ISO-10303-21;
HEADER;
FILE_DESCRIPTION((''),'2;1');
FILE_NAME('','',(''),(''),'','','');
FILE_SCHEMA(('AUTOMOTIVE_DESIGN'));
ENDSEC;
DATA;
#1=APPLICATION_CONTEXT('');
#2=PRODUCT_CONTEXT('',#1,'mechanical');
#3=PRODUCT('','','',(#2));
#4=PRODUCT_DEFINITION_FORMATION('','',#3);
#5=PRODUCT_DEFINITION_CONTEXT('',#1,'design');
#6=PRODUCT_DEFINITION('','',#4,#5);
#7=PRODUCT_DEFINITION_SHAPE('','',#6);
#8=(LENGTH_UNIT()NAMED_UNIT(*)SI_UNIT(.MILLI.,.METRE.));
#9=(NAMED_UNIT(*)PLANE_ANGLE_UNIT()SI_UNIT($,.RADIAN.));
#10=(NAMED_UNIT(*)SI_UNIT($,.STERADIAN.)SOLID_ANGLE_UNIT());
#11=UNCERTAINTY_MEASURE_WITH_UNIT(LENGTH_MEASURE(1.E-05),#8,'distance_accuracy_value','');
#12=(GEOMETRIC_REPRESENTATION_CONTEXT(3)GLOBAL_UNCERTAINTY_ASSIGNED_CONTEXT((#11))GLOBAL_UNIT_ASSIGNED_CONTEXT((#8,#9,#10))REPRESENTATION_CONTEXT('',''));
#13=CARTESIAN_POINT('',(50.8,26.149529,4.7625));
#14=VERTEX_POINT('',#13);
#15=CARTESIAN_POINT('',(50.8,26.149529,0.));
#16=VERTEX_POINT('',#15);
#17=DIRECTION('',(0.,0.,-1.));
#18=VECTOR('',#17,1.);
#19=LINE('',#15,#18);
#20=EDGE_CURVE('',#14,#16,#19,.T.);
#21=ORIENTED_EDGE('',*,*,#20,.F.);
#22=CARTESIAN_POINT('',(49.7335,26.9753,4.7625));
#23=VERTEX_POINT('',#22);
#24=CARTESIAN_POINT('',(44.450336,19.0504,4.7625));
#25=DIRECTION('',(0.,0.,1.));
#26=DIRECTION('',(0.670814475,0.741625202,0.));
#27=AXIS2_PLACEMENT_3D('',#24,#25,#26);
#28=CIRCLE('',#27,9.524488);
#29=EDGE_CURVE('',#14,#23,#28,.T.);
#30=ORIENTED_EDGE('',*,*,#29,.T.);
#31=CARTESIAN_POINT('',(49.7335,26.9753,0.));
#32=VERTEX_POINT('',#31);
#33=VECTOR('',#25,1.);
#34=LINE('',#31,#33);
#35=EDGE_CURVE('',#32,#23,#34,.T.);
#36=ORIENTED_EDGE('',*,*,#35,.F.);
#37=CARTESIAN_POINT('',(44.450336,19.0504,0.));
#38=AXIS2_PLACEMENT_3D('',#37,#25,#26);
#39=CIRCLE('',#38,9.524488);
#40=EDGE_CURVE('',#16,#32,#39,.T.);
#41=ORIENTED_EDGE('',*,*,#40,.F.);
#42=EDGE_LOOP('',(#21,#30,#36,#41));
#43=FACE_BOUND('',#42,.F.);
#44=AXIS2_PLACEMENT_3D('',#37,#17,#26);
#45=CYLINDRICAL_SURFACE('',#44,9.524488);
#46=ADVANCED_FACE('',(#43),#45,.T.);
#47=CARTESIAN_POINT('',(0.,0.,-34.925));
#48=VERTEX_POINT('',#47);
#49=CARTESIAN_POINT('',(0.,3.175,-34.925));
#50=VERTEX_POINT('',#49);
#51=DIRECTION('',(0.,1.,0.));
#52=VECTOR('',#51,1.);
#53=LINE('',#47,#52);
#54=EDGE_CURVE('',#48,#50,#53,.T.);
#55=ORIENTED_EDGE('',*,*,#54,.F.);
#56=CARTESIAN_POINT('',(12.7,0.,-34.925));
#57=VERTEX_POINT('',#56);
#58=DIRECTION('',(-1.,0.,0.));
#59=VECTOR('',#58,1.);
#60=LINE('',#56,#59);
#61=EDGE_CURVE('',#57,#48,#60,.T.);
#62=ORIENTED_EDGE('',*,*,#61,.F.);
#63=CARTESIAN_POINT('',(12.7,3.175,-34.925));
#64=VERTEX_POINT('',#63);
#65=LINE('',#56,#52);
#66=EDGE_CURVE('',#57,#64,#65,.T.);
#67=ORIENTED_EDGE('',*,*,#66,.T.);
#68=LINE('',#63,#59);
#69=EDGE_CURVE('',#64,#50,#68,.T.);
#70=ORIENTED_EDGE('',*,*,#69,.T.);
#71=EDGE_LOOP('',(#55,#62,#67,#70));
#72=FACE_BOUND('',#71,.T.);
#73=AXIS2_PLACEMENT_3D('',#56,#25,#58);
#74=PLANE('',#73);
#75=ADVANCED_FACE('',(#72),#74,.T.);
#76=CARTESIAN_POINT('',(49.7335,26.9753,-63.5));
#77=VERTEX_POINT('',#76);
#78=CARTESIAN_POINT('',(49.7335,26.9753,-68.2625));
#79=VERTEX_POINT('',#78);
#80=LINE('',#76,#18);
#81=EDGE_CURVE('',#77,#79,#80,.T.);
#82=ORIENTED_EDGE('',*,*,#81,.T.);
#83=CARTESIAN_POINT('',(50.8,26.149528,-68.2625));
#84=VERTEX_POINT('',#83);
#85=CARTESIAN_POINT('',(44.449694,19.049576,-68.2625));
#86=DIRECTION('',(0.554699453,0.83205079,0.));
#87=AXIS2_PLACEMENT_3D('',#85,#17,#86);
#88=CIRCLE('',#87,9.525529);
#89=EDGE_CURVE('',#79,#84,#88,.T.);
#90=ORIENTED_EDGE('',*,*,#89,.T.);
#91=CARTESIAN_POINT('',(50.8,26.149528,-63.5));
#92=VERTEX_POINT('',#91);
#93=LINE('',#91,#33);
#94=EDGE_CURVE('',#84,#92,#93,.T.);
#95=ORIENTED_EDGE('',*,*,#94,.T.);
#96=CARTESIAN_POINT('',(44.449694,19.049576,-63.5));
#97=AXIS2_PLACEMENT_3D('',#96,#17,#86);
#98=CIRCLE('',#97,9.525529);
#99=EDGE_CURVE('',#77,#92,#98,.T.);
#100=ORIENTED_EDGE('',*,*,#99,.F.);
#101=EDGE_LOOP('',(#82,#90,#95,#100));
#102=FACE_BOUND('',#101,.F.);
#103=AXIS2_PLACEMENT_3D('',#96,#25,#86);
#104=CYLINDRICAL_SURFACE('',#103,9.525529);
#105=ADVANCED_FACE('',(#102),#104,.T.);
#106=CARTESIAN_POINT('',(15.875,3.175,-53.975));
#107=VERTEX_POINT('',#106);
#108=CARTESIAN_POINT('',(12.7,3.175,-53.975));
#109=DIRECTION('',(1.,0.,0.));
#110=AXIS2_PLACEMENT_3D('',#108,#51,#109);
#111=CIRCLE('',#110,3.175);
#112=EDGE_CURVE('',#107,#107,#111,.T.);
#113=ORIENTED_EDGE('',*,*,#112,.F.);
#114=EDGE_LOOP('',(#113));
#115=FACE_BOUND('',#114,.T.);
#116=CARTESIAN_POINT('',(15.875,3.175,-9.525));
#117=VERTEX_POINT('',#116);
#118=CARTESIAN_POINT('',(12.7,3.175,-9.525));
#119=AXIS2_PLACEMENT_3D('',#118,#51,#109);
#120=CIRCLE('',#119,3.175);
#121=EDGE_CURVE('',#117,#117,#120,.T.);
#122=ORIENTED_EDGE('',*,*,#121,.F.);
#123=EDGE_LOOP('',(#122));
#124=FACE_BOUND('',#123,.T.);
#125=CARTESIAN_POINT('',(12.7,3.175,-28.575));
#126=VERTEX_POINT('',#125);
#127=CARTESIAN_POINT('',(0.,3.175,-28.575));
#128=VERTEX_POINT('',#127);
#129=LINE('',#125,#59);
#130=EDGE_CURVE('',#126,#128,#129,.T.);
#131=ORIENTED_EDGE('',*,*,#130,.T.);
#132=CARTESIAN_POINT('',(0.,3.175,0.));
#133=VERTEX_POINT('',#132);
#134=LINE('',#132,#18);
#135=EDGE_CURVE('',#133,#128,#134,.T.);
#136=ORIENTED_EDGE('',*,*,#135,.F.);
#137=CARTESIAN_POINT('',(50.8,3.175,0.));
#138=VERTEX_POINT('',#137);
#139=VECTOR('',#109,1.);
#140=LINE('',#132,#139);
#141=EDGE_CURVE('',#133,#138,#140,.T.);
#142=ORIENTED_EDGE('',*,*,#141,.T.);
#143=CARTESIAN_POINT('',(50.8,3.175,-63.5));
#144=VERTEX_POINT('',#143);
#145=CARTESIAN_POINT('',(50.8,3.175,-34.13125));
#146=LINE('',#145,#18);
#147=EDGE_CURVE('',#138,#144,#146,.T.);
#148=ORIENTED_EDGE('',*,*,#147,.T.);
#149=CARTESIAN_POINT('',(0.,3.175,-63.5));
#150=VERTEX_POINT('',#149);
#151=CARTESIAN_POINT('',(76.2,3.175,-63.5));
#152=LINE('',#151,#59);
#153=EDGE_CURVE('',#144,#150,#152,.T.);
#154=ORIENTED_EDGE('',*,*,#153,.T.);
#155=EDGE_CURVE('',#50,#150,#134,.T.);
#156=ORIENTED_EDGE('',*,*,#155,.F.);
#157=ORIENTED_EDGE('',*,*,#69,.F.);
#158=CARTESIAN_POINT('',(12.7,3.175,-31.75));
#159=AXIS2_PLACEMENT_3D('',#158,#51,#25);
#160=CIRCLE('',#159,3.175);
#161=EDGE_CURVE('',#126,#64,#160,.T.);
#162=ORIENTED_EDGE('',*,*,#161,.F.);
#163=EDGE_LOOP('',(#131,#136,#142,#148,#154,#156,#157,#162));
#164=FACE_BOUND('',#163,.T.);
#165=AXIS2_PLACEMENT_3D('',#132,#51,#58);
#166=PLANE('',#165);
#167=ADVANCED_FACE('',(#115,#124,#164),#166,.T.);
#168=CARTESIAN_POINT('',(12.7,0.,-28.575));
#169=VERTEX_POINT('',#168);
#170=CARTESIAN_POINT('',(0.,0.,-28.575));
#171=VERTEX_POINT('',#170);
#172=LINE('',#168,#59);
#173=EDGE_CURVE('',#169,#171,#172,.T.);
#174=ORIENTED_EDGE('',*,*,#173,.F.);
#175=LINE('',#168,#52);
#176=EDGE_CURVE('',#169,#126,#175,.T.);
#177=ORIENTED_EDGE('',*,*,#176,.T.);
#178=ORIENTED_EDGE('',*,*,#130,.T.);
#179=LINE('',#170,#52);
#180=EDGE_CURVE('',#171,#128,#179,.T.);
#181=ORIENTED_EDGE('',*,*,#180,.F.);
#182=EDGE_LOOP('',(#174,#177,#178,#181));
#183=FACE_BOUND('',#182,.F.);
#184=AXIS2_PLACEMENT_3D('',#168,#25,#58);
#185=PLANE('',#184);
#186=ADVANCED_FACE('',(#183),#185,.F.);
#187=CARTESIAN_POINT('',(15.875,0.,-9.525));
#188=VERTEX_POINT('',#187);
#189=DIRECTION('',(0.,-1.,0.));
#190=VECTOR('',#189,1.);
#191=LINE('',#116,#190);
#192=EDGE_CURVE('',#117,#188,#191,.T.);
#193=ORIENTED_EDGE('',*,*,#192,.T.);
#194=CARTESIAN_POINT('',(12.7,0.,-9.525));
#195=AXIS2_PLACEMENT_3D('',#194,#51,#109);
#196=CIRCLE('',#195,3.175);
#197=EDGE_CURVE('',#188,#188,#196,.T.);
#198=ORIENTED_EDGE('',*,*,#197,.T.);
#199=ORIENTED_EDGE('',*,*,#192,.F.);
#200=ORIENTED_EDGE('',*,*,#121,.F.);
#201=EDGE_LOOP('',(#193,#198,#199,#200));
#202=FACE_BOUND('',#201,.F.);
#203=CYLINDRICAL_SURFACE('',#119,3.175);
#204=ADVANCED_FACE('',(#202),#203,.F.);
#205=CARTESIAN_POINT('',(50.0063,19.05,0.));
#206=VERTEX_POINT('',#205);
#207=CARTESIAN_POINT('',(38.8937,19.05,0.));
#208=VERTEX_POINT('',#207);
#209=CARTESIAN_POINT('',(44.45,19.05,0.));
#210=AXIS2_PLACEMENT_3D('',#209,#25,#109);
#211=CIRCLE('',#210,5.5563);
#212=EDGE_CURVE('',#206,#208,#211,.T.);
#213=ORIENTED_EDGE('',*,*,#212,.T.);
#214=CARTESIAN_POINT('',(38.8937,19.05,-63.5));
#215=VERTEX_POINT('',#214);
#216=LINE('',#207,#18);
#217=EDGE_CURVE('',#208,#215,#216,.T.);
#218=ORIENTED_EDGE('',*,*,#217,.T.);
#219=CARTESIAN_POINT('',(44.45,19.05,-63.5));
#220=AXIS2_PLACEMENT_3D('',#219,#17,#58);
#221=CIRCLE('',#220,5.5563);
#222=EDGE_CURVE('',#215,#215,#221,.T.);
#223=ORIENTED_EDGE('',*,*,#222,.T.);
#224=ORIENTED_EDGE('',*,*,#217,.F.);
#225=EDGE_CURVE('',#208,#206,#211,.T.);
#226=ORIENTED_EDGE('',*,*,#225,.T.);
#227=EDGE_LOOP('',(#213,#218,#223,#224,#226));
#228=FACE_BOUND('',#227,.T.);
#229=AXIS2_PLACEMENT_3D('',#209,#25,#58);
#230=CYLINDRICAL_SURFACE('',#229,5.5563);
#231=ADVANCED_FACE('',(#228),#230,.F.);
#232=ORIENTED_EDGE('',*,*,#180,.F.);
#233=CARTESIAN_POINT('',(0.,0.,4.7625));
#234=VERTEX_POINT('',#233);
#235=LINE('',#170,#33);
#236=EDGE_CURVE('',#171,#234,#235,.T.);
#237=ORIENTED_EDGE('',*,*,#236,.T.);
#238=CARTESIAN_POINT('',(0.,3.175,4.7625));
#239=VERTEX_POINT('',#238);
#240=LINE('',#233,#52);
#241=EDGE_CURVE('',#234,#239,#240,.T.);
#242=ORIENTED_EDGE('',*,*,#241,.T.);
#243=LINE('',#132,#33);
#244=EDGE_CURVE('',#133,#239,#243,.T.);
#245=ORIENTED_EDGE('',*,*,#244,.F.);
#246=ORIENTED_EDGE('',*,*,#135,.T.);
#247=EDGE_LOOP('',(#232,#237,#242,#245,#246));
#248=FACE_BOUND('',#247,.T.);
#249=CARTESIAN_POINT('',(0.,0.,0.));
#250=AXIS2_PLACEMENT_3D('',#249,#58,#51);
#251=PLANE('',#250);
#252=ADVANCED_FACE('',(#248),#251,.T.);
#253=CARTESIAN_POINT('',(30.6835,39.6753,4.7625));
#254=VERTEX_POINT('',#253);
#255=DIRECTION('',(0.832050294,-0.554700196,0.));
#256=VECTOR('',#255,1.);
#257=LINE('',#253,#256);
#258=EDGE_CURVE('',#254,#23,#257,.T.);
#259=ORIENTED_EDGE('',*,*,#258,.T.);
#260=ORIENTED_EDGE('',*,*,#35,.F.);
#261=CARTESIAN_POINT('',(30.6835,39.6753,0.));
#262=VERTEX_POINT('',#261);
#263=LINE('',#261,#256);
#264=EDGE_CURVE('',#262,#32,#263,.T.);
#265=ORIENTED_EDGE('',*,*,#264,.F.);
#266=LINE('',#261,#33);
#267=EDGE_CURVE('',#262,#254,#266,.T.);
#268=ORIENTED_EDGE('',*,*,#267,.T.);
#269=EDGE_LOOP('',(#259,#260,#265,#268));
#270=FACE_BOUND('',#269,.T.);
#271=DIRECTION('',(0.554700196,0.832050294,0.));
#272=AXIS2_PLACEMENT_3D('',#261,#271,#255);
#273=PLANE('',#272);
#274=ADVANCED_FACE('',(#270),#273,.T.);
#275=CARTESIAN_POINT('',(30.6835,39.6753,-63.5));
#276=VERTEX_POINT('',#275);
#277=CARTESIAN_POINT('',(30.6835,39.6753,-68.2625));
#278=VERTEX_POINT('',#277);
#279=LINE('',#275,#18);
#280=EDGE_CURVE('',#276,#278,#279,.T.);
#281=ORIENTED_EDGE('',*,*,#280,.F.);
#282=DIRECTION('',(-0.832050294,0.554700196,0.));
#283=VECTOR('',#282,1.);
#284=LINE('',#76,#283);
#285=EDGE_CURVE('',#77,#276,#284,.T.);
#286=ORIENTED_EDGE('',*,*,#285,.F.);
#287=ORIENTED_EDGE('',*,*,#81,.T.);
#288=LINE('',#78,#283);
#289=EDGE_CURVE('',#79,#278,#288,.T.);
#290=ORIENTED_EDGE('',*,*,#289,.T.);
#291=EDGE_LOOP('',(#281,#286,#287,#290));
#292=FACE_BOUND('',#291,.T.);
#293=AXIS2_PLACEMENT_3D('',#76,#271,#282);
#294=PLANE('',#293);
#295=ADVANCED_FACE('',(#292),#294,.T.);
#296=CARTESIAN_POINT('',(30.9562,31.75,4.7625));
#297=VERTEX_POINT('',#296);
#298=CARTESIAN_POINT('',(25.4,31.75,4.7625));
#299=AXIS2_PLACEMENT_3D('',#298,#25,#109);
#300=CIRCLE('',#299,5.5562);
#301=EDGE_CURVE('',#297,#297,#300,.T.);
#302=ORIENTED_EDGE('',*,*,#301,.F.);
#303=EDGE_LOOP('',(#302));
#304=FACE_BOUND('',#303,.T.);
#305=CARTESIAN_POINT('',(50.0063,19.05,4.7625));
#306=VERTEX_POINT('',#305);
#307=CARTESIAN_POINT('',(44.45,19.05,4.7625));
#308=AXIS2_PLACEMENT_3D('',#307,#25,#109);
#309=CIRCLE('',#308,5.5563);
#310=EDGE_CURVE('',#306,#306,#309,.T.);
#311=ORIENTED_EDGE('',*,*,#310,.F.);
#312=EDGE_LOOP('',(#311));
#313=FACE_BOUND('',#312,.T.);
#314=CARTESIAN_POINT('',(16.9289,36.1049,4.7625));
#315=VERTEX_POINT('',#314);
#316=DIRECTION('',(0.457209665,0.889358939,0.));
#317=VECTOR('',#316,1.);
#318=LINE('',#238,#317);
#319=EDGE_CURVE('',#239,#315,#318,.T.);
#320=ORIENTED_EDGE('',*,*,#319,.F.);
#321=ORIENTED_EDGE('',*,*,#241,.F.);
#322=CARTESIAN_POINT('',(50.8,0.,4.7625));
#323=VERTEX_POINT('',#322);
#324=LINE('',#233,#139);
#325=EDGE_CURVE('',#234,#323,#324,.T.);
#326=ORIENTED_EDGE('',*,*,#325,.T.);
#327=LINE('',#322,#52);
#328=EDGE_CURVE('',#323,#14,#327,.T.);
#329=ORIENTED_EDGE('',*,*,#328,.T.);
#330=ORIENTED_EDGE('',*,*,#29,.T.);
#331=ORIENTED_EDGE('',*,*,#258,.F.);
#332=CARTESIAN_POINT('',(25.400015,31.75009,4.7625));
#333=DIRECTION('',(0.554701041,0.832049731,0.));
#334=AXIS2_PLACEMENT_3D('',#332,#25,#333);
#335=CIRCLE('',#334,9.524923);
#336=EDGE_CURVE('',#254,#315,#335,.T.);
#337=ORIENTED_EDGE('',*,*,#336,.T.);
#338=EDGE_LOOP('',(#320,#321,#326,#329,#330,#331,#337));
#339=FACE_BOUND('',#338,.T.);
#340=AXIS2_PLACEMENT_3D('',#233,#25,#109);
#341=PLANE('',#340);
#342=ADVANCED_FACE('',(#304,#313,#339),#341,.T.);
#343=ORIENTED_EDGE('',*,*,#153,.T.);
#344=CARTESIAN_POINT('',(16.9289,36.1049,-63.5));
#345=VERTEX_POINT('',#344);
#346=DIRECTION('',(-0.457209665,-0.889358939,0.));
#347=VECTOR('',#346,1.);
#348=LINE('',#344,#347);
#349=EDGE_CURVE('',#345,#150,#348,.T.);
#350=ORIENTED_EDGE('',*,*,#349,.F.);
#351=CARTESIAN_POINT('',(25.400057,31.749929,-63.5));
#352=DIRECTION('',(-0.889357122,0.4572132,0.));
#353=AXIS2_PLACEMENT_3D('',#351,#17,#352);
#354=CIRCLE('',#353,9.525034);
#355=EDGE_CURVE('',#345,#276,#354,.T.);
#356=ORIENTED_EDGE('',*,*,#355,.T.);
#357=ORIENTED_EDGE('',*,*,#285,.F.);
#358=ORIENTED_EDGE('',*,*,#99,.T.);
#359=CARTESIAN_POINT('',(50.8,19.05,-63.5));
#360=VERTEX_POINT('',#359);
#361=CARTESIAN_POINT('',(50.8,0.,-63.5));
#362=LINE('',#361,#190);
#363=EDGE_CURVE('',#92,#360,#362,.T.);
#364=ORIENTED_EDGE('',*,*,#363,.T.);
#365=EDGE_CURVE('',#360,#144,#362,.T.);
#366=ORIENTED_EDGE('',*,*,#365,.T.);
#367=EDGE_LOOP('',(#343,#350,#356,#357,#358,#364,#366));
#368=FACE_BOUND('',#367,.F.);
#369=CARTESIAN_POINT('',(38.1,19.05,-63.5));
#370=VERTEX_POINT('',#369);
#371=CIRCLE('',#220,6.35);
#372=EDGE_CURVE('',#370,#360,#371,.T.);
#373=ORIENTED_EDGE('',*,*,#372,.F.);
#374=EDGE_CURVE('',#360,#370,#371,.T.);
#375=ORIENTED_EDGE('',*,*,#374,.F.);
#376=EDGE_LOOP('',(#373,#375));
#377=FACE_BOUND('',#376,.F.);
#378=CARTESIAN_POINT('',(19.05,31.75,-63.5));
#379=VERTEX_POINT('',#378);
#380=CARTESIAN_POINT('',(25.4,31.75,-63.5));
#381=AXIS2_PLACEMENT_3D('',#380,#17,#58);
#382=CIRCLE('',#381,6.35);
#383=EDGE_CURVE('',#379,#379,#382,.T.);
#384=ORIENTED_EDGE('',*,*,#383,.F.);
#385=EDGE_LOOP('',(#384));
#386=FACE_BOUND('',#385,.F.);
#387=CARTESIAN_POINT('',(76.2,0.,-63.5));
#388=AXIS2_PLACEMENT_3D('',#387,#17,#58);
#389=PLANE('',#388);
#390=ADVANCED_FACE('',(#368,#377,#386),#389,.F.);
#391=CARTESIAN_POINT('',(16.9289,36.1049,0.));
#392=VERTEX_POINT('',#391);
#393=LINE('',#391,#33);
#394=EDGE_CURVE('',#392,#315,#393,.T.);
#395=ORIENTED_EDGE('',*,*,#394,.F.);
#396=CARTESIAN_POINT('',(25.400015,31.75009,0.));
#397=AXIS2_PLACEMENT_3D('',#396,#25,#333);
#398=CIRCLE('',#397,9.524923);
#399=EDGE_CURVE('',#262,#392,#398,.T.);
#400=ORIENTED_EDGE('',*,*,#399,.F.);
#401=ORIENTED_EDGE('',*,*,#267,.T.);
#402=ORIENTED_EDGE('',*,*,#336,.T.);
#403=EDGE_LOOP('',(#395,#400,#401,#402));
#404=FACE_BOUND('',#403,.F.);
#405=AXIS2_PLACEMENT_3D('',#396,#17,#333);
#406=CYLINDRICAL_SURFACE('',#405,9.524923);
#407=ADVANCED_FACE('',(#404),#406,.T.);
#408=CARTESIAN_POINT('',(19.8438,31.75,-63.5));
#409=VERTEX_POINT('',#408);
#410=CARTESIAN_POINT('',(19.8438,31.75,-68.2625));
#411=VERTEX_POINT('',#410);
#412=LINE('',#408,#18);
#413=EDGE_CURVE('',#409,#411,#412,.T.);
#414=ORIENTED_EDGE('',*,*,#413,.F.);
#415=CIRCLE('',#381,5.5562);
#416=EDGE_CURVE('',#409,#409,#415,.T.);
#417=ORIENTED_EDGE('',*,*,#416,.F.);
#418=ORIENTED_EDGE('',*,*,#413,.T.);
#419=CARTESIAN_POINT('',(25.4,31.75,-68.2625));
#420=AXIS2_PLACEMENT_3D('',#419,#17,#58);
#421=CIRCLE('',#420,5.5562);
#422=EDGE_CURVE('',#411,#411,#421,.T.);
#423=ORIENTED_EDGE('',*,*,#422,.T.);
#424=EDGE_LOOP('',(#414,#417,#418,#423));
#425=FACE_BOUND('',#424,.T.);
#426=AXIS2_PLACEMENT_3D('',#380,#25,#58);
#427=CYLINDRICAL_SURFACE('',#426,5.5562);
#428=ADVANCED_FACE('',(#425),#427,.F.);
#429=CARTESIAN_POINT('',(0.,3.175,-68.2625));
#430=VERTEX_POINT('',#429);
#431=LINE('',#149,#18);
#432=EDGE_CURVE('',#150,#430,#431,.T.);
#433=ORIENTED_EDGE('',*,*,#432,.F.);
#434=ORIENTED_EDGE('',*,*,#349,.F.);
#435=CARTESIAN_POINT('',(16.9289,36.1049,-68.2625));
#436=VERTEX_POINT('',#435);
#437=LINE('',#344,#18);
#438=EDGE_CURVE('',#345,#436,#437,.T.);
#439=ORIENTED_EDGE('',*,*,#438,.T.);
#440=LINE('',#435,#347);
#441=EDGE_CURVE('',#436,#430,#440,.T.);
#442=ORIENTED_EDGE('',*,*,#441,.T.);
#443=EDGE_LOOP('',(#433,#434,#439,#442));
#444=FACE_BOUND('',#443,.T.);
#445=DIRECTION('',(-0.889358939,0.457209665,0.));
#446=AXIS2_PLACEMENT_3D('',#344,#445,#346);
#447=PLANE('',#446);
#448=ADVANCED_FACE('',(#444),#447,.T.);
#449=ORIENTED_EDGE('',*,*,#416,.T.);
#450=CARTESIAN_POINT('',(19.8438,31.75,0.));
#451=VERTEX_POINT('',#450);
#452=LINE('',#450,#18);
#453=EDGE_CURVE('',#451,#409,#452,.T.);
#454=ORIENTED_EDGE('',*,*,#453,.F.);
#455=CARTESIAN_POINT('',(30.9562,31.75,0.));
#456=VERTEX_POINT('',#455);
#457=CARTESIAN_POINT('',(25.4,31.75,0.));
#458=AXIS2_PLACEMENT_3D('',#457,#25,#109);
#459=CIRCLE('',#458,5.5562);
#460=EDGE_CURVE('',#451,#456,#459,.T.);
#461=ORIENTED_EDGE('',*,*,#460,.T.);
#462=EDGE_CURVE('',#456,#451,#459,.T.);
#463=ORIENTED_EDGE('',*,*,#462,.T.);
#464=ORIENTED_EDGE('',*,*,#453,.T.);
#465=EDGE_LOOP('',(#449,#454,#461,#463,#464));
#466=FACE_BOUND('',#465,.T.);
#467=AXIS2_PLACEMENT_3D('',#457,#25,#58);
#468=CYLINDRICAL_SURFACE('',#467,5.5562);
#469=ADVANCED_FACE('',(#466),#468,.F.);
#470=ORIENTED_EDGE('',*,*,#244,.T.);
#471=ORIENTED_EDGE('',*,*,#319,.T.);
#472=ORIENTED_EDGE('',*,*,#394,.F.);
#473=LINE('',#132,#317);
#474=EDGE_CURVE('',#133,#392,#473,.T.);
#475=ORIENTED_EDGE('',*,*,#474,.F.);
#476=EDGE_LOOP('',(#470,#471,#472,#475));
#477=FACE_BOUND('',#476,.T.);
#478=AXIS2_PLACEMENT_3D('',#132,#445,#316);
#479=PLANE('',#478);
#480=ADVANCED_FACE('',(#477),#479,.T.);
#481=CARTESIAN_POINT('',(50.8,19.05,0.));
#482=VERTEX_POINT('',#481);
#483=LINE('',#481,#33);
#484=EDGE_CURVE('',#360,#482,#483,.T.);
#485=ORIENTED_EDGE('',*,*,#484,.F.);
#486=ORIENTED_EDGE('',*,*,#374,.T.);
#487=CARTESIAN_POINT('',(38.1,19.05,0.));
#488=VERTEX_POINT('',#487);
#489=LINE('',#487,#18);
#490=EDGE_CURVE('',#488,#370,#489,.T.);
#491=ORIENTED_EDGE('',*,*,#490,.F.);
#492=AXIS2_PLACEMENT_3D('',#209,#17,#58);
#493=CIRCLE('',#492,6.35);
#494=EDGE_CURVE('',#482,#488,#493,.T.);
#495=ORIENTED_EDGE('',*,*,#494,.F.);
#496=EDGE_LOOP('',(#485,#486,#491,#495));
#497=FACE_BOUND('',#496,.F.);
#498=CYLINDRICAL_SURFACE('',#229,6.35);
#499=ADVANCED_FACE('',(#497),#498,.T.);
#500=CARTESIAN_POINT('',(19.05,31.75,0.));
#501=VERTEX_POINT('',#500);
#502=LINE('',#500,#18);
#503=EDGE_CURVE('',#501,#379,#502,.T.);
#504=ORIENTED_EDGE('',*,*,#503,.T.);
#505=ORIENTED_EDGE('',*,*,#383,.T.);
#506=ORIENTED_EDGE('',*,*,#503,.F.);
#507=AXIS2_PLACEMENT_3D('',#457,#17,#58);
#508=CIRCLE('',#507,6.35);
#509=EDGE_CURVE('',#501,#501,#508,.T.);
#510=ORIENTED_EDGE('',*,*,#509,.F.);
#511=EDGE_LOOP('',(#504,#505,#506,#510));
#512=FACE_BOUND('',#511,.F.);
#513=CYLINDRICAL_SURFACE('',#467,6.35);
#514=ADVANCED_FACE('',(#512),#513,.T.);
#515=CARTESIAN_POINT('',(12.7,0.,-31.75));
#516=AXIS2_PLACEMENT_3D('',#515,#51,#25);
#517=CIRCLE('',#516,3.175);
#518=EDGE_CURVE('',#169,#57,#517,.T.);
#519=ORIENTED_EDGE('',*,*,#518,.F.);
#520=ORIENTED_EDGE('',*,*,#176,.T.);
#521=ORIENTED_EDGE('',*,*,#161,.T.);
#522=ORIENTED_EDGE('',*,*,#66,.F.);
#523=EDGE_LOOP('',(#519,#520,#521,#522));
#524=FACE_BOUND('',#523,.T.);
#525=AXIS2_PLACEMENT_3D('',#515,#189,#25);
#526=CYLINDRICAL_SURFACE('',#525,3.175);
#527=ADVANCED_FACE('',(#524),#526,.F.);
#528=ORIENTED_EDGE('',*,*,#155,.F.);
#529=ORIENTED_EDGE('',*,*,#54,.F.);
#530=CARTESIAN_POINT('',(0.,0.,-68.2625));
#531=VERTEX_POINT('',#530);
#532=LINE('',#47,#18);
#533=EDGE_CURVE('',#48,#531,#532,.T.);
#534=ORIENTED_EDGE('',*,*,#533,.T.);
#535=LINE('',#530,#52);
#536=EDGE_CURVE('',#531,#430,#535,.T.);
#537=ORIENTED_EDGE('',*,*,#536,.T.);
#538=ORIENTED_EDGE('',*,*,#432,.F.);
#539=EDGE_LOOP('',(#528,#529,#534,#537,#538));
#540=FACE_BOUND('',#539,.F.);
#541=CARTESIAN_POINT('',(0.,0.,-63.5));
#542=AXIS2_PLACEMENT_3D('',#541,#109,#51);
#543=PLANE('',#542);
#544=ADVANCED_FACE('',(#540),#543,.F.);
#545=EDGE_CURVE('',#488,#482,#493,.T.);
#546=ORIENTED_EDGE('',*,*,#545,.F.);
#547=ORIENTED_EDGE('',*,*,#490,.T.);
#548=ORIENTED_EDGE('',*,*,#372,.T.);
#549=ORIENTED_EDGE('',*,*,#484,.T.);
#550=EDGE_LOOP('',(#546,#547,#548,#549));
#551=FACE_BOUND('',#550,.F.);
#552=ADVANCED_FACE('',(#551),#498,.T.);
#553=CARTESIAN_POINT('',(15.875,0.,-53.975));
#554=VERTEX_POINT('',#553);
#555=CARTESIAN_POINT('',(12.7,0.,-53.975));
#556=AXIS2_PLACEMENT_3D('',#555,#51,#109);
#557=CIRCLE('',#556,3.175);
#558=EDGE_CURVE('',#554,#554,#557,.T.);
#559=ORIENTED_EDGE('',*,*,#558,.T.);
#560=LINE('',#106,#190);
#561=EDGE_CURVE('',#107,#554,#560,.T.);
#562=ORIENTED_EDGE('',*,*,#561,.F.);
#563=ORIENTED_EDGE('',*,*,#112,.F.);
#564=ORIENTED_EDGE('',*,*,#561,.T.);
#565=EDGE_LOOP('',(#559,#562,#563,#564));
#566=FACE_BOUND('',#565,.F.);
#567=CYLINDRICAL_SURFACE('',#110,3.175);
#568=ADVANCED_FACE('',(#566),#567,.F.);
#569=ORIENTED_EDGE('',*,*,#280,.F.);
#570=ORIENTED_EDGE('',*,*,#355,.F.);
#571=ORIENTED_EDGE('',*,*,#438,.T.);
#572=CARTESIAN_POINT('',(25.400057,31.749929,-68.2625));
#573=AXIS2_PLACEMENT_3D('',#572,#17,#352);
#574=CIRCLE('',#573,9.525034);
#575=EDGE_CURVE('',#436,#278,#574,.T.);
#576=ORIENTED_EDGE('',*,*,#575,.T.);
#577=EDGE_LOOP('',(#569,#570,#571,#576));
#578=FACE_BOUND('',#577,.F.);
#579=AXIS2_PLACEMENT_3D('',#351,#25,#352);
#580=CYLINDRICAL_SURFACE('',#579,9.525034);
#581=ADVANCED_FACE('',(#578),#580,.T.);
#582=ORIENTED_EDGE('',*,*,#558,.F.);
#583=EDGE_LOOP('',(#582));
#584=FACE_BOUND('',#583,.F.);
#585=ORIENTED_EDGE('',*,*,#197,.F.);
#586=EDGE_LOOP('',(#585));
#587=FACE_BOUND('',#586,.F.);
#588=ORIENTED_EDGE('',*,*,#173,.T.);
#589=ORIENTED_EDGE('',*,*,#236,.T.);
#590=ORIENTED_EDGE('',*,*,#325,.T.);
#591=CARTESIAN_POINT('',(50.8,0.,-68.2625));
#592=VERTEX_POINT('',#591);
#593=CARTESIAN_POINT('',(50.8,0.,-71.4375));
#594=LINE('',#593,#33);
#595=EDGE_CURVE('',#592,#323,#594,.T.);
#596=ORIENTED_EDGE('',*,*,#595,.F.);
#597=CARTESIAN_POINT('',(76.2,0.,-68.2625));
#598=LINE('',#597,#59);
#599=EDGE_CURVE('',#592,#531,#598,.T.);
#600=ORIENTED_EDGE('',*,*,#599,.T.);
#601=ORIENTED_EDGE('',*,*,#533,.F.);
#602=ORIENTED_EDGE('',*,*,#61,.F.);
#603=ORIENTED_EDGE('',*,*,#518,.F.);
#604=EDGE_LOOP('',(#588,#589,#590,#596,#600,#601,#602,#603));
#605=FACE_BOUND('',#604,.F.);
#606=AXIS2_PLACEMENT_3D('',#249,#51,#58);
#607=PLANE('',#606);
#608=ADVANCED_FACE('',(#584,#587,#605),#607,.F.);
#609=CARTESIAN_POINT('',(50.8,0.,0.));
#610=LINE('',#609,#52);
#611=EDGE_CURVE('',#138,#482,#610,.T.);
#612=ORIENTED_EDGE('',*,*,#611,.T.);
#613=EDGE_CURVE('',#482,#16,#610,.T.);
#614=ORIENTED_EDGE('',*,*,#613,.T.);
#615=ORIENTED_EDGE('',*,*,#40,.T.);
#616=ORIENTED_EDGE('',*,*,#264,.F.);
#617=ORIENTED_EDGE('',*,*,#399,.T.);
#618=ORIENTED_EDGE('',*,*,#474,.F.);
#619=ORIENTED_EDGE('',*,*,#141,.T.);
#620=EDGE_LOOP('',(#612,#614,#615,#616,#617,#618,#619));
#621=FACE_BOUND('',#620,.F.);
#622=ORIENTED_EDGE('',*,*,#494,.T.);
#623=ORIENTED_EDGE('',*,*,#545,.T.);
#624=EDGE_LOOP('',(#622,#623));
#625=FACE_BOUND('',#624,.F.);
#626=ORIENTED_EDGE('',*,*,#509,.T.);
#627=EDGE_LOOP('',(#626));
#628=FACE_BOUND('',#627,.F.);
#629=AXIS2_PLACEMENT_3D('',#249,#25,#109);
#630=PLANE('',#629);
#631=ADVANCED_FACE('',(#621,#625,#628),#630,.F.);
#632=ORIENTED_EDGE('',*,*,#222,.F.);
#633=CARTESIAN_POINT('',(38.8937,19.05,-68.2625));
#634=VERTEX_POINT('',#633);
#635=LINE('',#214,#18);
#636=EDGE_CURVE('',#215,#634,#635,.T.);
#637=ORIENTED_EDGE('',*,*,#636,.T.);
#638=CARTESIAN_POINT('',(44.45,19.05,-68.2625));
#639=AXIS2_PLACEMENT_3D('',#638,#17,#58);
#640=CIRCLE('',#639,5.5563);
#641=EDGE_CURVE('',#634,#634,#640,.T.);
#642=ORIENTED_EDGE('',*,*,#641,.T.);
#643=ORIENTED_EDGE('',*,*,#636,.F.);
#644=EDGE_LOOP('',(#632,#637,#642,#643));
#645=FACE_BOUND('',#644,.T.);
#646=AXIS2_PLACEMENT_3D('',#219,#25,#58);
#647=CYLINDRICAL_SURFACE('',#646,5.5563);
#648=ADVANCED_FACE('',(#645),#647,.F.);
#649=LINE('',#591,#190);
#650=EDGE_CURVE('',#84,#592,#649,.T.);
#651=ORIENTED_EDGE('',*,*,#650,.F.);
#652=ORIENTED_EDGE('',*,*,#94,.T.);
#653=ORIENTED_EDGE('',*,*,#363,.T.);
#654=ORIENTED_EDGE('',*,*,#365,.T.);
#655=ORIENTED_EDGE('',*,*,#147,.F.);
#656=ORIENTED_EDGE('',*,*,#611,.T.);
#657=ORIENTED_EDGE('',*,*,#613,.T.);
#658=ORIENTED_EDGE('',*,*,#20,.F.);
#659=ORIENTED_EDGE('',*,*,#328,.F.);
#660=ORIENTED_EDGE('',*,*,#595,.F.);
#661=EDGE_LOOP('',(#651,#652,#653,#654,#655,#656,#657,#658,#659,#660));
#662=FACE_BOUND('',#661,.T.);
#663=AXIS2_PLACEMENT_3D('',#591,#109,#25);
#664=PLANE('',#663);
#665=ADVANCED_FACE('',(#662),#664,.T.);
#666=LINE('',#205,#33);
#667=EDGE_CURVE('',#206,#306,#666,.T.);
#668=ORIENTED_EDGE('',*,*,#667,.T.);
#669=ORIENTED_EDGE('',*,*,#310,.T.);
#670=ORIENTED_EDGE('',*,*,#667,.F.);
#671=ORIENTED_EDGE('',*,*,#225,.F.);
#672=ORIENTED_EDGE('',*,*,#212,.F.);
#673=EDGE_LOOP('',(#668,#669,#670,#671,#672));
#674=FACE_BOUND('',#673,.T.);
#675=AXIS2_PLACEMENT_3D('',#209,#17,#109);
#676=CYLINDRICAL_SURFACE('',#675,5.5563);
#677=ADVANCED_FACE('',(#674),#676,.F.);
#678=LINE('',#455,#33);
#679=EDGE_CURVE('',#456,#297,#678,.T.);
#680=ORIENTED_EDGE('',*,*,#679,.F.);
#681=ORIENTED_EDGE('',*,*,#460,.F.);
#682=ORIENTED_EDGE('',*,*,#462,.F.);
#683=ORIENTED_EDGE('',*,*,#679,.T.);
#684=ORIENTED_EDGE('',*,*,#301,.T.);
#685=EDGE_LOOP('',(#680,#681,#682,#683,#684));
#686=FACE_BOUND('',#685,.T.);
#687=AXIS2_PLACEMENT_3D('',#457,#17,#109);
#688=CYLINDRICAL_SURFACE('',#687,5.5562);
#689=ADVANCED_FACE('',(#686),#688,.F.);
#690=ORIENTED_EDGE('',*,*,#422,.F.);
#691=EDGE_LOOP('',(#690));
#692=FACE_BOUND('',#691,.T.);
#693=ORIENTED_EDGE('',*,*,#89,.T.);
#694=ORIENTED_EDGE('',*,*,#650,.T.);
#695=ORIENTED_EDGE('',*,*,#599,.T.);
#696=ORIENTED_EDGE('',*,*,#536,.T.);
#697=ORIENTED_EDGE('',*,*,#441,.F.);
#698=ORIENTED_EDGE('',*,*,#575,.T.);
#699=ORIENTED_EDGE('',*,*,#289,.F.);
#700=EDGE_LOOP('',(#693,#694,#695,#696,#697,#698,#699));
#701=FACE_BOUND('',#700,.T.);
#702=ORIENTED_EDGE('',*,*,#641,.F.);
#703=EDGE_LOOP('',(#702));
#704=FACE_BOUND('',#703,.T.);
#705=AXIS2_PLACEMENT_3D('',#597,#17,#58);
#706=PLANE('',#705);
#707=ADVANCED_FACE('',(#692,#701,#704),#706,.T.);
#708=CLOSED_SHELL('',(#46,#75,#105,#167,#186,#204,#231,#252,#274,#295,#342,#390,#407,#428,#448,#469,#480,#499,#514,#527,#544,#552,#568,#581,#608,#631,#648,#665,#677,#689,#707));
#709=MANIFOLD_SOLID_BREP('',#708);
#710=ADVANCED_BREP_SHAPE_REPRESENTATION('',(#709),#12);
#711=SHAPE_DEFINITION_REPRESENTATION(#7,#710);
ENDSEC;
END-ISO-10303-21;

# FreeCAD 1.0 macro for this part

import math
import FreeCAD as App
import Part
import Sketcher
from FreeCAD import Vector
Q = App.Units.Quantity

doc = App.newDocument("Part")
body = doc.addObject("PartDesign::Body", "Body")

sketch1 = body.newObject("Sketcher::SketchObject", "Sketch")
sketch1.AttachmentSupport = (doc.getObject("XZ_Plane"), [""])
sketch1.MapMode = "FlatFace"
sketch1.addGeometry([
    Part.LineSegment(Vector(-47.5, -26.2, 0), Vector(0, 0, 0)),
    Part.LineSegment(Vector(0, 0, 0), Vector(76.2, 0, 0)),
    Part.LineSegment(Vector(76.2, 0, 0), Vector(129.8, -26, 0)),
    Part.ArcOfCircle(Part.Circle(Vector(127, -31.8, 0), Vector(0, 0, 1), 6.3), math.radians(-64), math.radians(64)),
    Part.LineSegment(Vector(129.8, -37.5, 0), Vector(76.2, -63.5, 0)),
    Part.LineSegment(Vector(76.2, -63.5, 0), Vector(0, -63.5, 0)),
    Part.LineSegment(Vector(0, -63.5, 0), Vector(-47.5, -37.3, 0)),
    Part.ArcOfCircle(Part.Circle(Vector(-44.5, -31.8, 0), Vector(0, 0, 1), 6.3), math.radians(119), math.radians(241)),
    Part.ArcOfCircle(Part.Circle(Vector(114.3, -31.8, 0), Vector(0, 0, 1), 3.2), math.radians(90), math.radians(270)),
    Part.LineSegment(Vector(114.3, -34.9, 0), Vector(127, -34.9, 0)),
    Part.ArcOfCircle(Part.Circle(Vector(127, -31.8, 0), Vector(0, 0, 1), 3.2), math.radians(-90), math.radians(90)),
    Part.LineSegment(Vector(127, -28.6, 0), Vector(114.3, -28.6, 0)),
    Part.LineSegment(Vector(76.2, -28.6, 0), Vector(63.5, -28.6, 0)),
    Part.ArcOfCircle(Part.Circle(Vector(63.5, -31.8, 0), Vector(0, 0, 1), 3.2), math.radians(90), math.radians(270)),
    Part.LineSegment(Vector(63.5, -34.9, 0), Vector(76.2, -34.9, 0)),
    Part.ArcOfCircle(Part.Circle(Vector(76.2, -31.8, 0), Vector(0, 0, 1), 3.2), math.radians(-90), math.radians(90)),
    Part.ArcOfCircle(Part.Circle(Vector(12.7, -31.8, 0), Vector(0, 0, 1), 3.2), math.radians(-90), math.radians(90)),
    Part.LineSegment(Vector(12.7, -28.6, 0), Vector(0, -28.6, 0)),
    Part.ArcOfCircle(Part.Circle(Vector(0, -31.8, 0), Vector(0, 0, 1), 3.2), math.radians(90), math.radians(270)),
    Part.LineSegment(Vector(0, -34.9, 0), Vector(12.7, -34.9, 0)),
    Part.Circle(Vector(-44.5, -31.8, 0), Vector(0, 0, 1), 3.2),
], False)
sketch1.addConstraint([
    Sketcher.Constraint("Coincident", 0, 2, 1, 1),
    Sketcher.Constraint("Coincident", 1, 2, 2, 1),
    Sketcher.Constraint("Tangent", 2, 2, 3, 2),
    Sketcher.Constraint("Tangent", 3, 1, 4, 1),
    Sketcher.Constraint("Coincident", 4, 2, 5, 1),
    Sketcher.Constraint("Coincident", 5, 2, 6, 1),
    Sketcher.Constraint("Tangent", 6, 2, 7, 2),
    Sketcher.Constraint("Tangent", 7, 1, 0, 1),
    Sketcher.Constraint("Tangent", 8, 2, 9, 1),
    Sketcher.Constraint("Tangent", 9, 2, 10, 1),
    Sketcher.Constraint("Tangent", 10, 2, 11, 1),
    Sketcher.Constraint("Tangent", 11, 2, 8, 1),
    Sketcher.Constraint("Tangent", 12, 2, 13, 1),
    Sketcher.Constraint("Tangent", 13, 2, 14, 1),
    Sketcher.Constraint("Tangent", 14, 2, 15, 1),
    Sketcher.Constraint("Tangent", 15, 2, 12, 1),
    Sketcher.Constraint("Tangent", 16, 2, 17, 1),
    Sketcher.Constraint("Tangent", 17, 2, 18, 1),
    Sketcher.Constraint("Tangent", 18, 2, 19, 1),
    Sketcher.Constraint("Tangent", 19, 2, 16, 1),
    Sketcher.Constraint("Horizontal", 1),
    Sketcher.Constraint("Horizontal", 5),
    Sketcher.Constraint("Horizontal", 9),
    Sketcher.Constraint("Horizontal", 11),
    Sketcher.Constraint("Horizontal", 12),
    Sketcher.Constraint("Horizontal", 14),
    Sketcher.Constraint("Horizontal", 17),
    Sketcher.Constraint("Horizontal", 19),
    Sketcher.Constraint("Coincident", 0, 2, -1, 1),
    Sketcher.Constraint("Coincident", 10, 3, 3, 3),
    Sketcher.Constraint("Coincident", 20, 3, 7, 3),
    Sketcher.Constraint("Equal", 3, 7),
    Sketcher.Constraint("Equal", 10, 13),
    Sketcher.Constraint("Equal", 15, 16),
    Sketcher.Constraint("Equal", 18, 20),
    Sketcher.Constraint("PointOnObject", 18, 3, -2),
    Sketcher.Constraint("PointOnObject", 5, 2, -2),
    Sketcher.Constraint("Horizontal", 3, 3, 7, 3),
    Sketcher.Constraint("Horizontal", 10, 3, 13, 3),
    Sketcher.Constraint("Horizontal", 15, 3, 16, 3),
    Sketcher.Constraint("Vertical", 15, 3, 1, 2),
    Sketcher.Constraint("Vertical", 2, 2, 3, 1),
    Sketcher.Constraint("Vertical", 1, 2, 4, 2),
    Sketcher.Constraint("Equal", 11, 12),
    Sketcher.Constraint("Equal", 14, 17),
    Sketcher.Constraint("Diameter", 20, Q("0.25 in")),
    Sketcher.Constraint("DistanceX", 1, 1, 1, 2, Q("3 in")),
    Sketcher.Constraint("Radius", 3, Q("0.25 in")),
    Sketcher.Constraint("DistanceX", 9, 1, 9, 2, Q("0.5 in")),
    Sketcher.Constraint("DistanceX", 13, 3, 8, 3, Q("2 in")),
    Sketcher.Constraint("DistanceY", 4, 2, -1, 1, Q("2.5 in")),
    Sketcher.Constraint("DistanceX", 7, 3, -1, 1, Q("1.75 in")),
])
pad1 = body.newObject("PartDesign::Pad", "Pad")
pad1.Profile = sketch1
pad1.Length = Q("0.125 in")
pad1.Reversed = True

sketch2 = body.newObject("Sketcher::SketchObject", "Sketch001")
sketch2.AttachmentSupport = (doc.getObject("XY_Plane"), [""])
sketch2.MapMode = "FlatFace"
sketch2.addGeometry([
    Part.LineSegment(Vector(0, 3.2, 0), Vector(0, 0, 0)),
    Part.LineSegment(Vector(0, 0, 0), Vector(76.2, 0, 0)),
    Part.LineSegment(Vector(76.2, 0, 0), Vector(76.2, 3.2, 0)),
    Part.LineSegment(Vector(76.2, 3.2, 0), Vector(50.8, 26.1, 0)),
    Part.ArcOfCircle(Part.Circle(Vector(44.5, 19.1, 0), Vector(0, 0, 1), 9.5), math.radians(47.87), math.radians(56.31)),
    Part.LineSegment(Vector(49.7, 27, 0), Vector(30.7, 39.7, 0)),
    Part.ArcOfCircle(Part.Circle(Vector(25.4, 31.8, 0), Vector(0, 0, 1), 9.5), math.radians(56), math.radians(153)),
    Part.LineSegment(Vector(16.9, 36.1, 0), Vector(0, 3.2, 0)),
    Part.Circle(Vector(25.4, 31.8, 0), Vector(0, 0, 1), 5.6),
    Part.Circle(Vector(44.5, 19.1, 0), Vector(0, 0, 1), 5.6),
], False)
sketch2.addConstraint([
    Sketcher.Constraint("Coincident", 0, 2, 1, 1),
    Sketcher.Constraint("Coincident", 1, 2, 2, 1),
    Sketcher.Constraint("Coincident", 2, 2, 3, 1),
    Sketcher.Constraint("Tangent", 3, 2, 4, 1),
    Sketcher.Constraint("Tangent", 4, 2, 5, 1),
    Sketcher.Constraint("Tangent", 5, 2, 6, 1),
    Sketcher.Constraint("Tangent", 6, 2, 7, 1),
    Sketcher.Constraint("Coincident", 7, 2, 0, 1),
    Sketcher.Constraint("Vertical", 0),
    Sketcher.Constraint("Horizontal", 1),
    Sketcher.Constraint("Vertical", 2),
    Sketcher.Constraint("Coincident", 0, 2, -1, 1),
    Sketcher.Constraint("Coincident", 8, 3, 6, 3),
    Sketcher.Constraint("Coincident", 9, 3, 4, 3),
    Sketcher.Constraint("Equal", 4, 6),
    Sketcher.Constraint("Equal", 8, 9),
    Sketcher.Constraint("Horizontal", 2, 2, 7, 2),
    Sketcher.Constraint("Diameter", 8, Q("0.4375 in")),
    Sketcher.Constraint("DistanceX", -1, 1, 6, 3, Q("1 in")),
    Sketcher.Constraint("Radius", 4, Q("0.375 in")),
    Sketcher.Constraint("DistanceX", 1, 1, 1, 2, Q("3 in")),
    Sketcher.Constraint("DistanceY", -1, 1, 4, 3, Q("0.75 in")),
    Sketcher.Constraint("DistanceY", -1, 1, 6, 3, Q("1.25 in")),
    Sketcher.Constraint("DistanceX", 6, 3, 4, 3, Q("0.75 in")),
    Sketcher.Constraint("DistanceY", 0, 2, 0, 1, Q("0.125 in")),
])
pad2 = body.newObject("PartDesign::Pad", "Pad001")
pad2.Profile = sketch2
pad2.Length = Q("0.1875 in")

sketch3 = body.newObject("Sketcher::SketchObject", "Sketch002")
sketch3.AttachmentSupport = (doc.getObject("XY_Plane"), [""])
sketch3.MapMode = "FlatFace"
sketch3.AttachmentOffset = App.Placement(Vector(0, 0, -2.5 * 25.4), App.Rotation())
sketch3.addGeometry([
    Part.LineSegment(Vector(76.2, 3.2, 0), Vector(76.2, 0, 0)),
    Part.LineSegment(Vector(76.2, 0, 0), Vector(0, 0, 0)),
    Part.LineSegment(Vector(0, 0, 0), Vector(0, 3.2, 0)),
    Part.LineSegment(Vector(0, 3.2, 0), Vector(16.9, 36.1, 0)),
    Part.ArcOfCircle(Part.Circle(Vector(25.4, 31.8, 0), Vector(0, 0, 1), 9.5), math.radians(56), math.radians(153)),
    Part.LineSegment(Vector(30.7, 39.7, 0), Vector(49.7, 27, 0)),
    Part.ArcOfCircle(Part.Circle(Vector(44.5, 19.1, 0), Vector(0, 0, 1), 9.5), math.radians(47.87), math.radians(56.31)),
    Part.LineSegment(Vector(50.8, 26.1, 0), Vector(76.2, 3.2, 0)),
    Part.Circle(Vector(25.4, 31.8, 0), Vector(0, 0, 1), 5.6),
    Part.Circle(Vector(44.5, 19.1, 0), Vector(0, 0, 1), 5.6),
], False)
sketch3.addConstraint([
    Sketcher.Constraint("Coincident", 0, 2, 1, 1),
    Sketcher.Constraint("Coincident", 1, 2, 2, 1),
    Sketcher.Constraint("Coincident", 2, 2, 3, 1),
    Sketcher.Constraint("Tangent", 3, 2, 4, 2),
    Sketcher.Constraint("Tangent", 4, 1, 5, 1),
    Sketcher.Constraint("Tangent", 5, 2, 6, 2),
    Sketcher.Constraint("Tangent", 6, 1, 7, 1),
    Sketcher.Constraint("Coincident", 7, 2, 0, 1),
    Sketcher.Constraint("Vertical", 0),
    Sketcher.Constraint("Horizontal", 1),
    Sketcher.Constraint("Vertical", 2),
    Sketcher.Constraint("Coincident", 1, 2, -1, 1),
    Sketcher.Constraint("Coincident", 8, 3, 4, 3),
    Sketcher.Constraint("Coincident", 9, 3, 6, 3),
    Sketcher.Constraint("Equal", 4, 6),
    Sketcher.Constraint("Equal", 8, 9),
    Sketcher.Constraint("Horizontal", 2, 2, 7, 2),
    Sketcher.Constraint("DistanceX", 1, 2, 1, 1, Q("3 in")),
    Sketcher.Constraint("Diameter", 8, Q("0.4375 in")),
    Sketcher.Constraint("DistanceX", -1, 1, 4, 3, Q("1 in")),
    Sketcher.Constraint("Radius", 4, Q("0.375 in")),
    Sketcher.Constraint("DistanceY", 6, 3, 4, 3, Q("0.5 in")),
    Sketcher.Constraint("DistanceY", 0, 2, 0, 1, Q("0.125 in")),
    Sketcher.Constraint("DistanceY", -1, 1, 4, 3, Q("1.25 in")),
    Sketcher.Constraint("DistanceX", -1, 1, 6, 3, Q("1.75 in")),
])
pad3 = body.newObject("PartDesign::Pad", "Pad002")
pad3.Profile = sketch3
pad3.Length = Q("0.1875 in")
pad3.Reversed = True

sketch4 = body.newObject("Sketcher::SketchObject", "Sketch003")
sketch4.AttachmentSupport = (doc.getObject("XY_Plane"), [""])
sketch4.MapMode = "FlatFace"
sketch4.addGeometry([
    Part.Circle(Vector(44, 19, 0), Vector(0, 0, 1), 6),
    Part.Circle(Vector(44, 19, 0), Vector(0, 0, 1), 6),
    Part.Circle(Vector(25, 32, 0), Vector(0, 0, 1), 6),
    Part.Circle(Vector(25, 32, 0), Vector(0, 0, 1), 6),
], False)
sketch4.addConstraint([
    Sketcher.Constraint("Coincident", 1, 3, 0, 3),
    Sketcher.Constraint("Coincident", 3, 3, 2, 3),
    Sketcher.Constraint("Equal", 0, 2),
    Sketcher.Constraint("Equal", 1, 3),
    Sketcher.Constraint("Diameter", 0, Q("0.5 in")),
    Sketcher.Constraint("DistanceY", 0, 3, 2, 3, Q("0.5 in")),
    Sketcher.Constraint("Diameter", 1, Q("0.4375 in")),
    Sketcher.Constraint("DistanceX", -1, 1, 2, 3, Q("1 in")),
    Sketcher.Constraint("DistanceX", -1, 1, 0, 3, Q("1.75 in")),
    Sketcher.Constraint("DistanceY", -1, 1, 0, 3, Q("0.75 in")),
])
pad4 = body.newObject("PartDesign::Pad", "Pad003")
pad4.Profile = sketch4
pad4.Length = Q("2.5 in")
pad4.Reversed = True

sketch5 = body.newObject("Sketcher::SketchObject", "Sketch004")
sketch5.AttachmentSupport = (doc.getObject("XZ_Plane"), [""])
sketch5.MapMode = "FlatFace"
sketch5.AttachmentOffset = App.Placement(Vector(0, 0, -0.125 * 25.4), App.Rotation())
sketch5.addGeometry([
    Part.Circle(Vector(88.9, -31.8, 0), Vector(0, 0, 1), 3.2),
    Part.Circle(Vector(63.5, -9.5, 0), Vector(0, 0, 1), 3.2),
    Part.Circle(Vector(63.5, -54, 0), Vector(0, 0, 1), 3.2),
    Part.Circle(Vector(-12.7, -31.8, 0), Vector(0, 0, 1), 3.2),
    Part.Circle(Vector(12.7, -9.5, 0), Vector(0, 0, 1), 3.2),
    Part.Circle(Vector(12.7, -54, 0), Vector(0, 0, 1), 3.2),
], False)
sketch5.addConstraint([
    Sketcher.Constraint("Equal", 0, 1),
    Sketcher.Constraint("Equal", 1, 2),
    Sketcher.Constraint("Equal", 2, 3),
    Sketcher.Constraint("Equal", 3, 4),
    Sketcher.Constraint("Equal", 4, 5),
    Sketcher.Constraint("Horizontal", 0, 3, 3, 3),
    Sketcher.Constraint("Horizontal", 1, 3, 4, 3),
    Sketcher.Constraint("Horizontal", 2, 3, 5, 3),
    Sketcher.Constraint("Vertical", 1, 3, 2, 3),
    Sketcher.Constraint("Vertical", 4, 3, 5, 3),
    Sketcher.Constraint("Diameter", 0, Q("0.25 in")),
    Sketcher.Constraint("DistanceX", 3, 3, -1, 1, Q("0.5 in")),
    Sketcher.Constraint("DistanceX", -1, 1, 4, 3, Q("0.5 in")),
    Sketcher.Constraint("DistanceX", 1, 3, 0, 3, Q("1 in")),
    Sketcher.Constraint("DistanceY", 0, 3, 1, 3, Q("0.875 in")),
    Sketcher.Constraint("DistanceY", 2, 3, 0, 3, Q("0.875 in")),
    Sketcher.Constraint("DistanceX", 3, 3, 1, 3, Q("3 in")),
    Sketcher.Constraint("DistanceY", 0, 3, -1, 1, Q("1.25 in")),
])
pocket1 = body.newObject("PartDesign::Pocket", "Pocket")
pocket1.Profile = sketch5
pocket1.Length = Q("2.5 in")
pocket1.Reversed = True

sketch6 = body.newObject("Sketcher::SketchObject", "Sketch005")
sketch6.AttachmentSupport = (doc.getObject("XZ_Plane"), [""])
sketch6.MapMode = "FlatFace"
sketch6.addGeometry([
    Part.LineSegment(Vector(50.8, 4.8, 0), Vector(50.8, -71.4, 0)),
    Part.LineSegment(Vector(50.8, -71.4, 0), Vector(133.3, -71.4, 0)),
    Part.LineSegment(Vector(133.3, -71.4, 0), Vector(133.3, 4.8, 0)),
    Part.LineSegment(Vector(133.3, 4.8, 0), Vector(50.8, 4.8, 0)),
    Part.Circle(Vector(63.5, -54, 0), Vector(0, 0, 1), 3.2),
    Part.ArcOfCircle(Part.Circle(Vector(63.5, -31.8, 0), Vector(0, 0, 1), 3.2), math.radians(90), math.radians(270)),
    Part.LineSegment(Vector(63.5, -28.6, 0), Vector(76.2, -28.6, 0)),
    Part.ArcOfCircle(Part.Circle(Vector(76.2, -31.8, 0), Vector(0, 0, 1), 3.2), math.radians(-90), math.radians(90)),
    Part.LineSegment(Vector(76.2, -34.9, 0), Vector(63.5, -34.9, 0)),
    Part.Circle(Vector(88.9, -31.8, 0), Vector(0, 0, 1), 3.2),
    Part.ArcOfCircle(Part.Circle(Vector(127, -31.8, 0), Vector(0, 0, 1), 3.2), math.radians(-90), math.radians(90)),
    Part.LineSegment(Vector(127, -34.9, 0), Vector(114.3, -34.9, 0)),
    Part.ArcOfCircle(Part.Circle(Vector(114.3, -31.8, 0), Vector(0, 0, 1), 3.2), math.radians(90), math.radians(270)),
    Part.LineSegment(Vector(114.3, -28.6, 0), Vector(127, -28.6, 0)),
    Part.Circle(Vector(63.5, -9.5, 0), Vector(0, 0, 1), 3.2),
], False)
sketch6.addConstraint([
    Sketcher.Constraint("Coincident", 0, 2, 1, 1),
    Sketcher.Constraint("Coincident", 1, 2, 2, 1),
    Sketcher.Constraint("Coincident", 2, 2, 3, 1),
    Sketcher.Constraint("Coincident", 3, 2, 0, 1),
    Sketcher.Constraint("Tangent", 5, 1, 6, 1),
    Sketcher.Constraint("Tangent", 6, 2, 7, 2),
    Sketcher.Constraint("Tangent", 7, 1, 8, 1),
    Sketcher.Constraint("Tangent", 8, 2, 5, 2),
    Sketcher.Constraint("Tangent", 10, 1, 11, 1),
    Sketcher.Constraint("Tangent", 11, 2, 12, 2),
    Sketcher.Constraint("Tangent", 12, 1, 13, 1),
    Sketcher.Constraint("Tangent", 13, 2, 10, 2),
    Sketcher.Constraint("Vertical", 0),
    Sketcher.Constraint("Horizontal", 1),
    Sketcher.Constraint("Vertical", 2),
    Sketcher.Constraint("Horizontal", 3),
    Sketcher.Constraint("Horizontal", 6),
    Sketcher.Constraint("Horizontal", 8),
    Sketcher.Constraint("Horizontal", 11),
    Sketcher.Constraint("Horizontal", 13),
    Sketcher.Constraint("Equal", 4, 5),
    Sketcher.Constraint("Equal", 7, 9),
    Sketcher.Constraint("Equal", 9, 10),
    Sketcher.Constraint("Equal", 12, 14),
    Sketcher.Constraint("Horizontal", 7, 3, 9, 3),
    Sketcher.Constraint("Horizontal", 9, 3, 10, 3),
    Sketcher.Constraint("Vertical", 4, 3, 5, 3),
    Sketcher.Constraint("Vertical", 5, 3, 14, 3),
    Sketcher.Constraint("Equal", 8, 11),
    Sketcher.Constraint("DistanceY", 0, 2, 0, 1, Q("3 in")),
    Sketcher.Constraint("DistanceX", -1, 1, 7, 3, Q("3 in")),
    Sketcher.Constraint("DistanceX", 5, 3, 9, 3, Q("1 in")),
    Sketcher.Constraint("DistanceX", 9, 3, 12, 3, Q("1 in")),
    Sketcher.Constraint("DistanceX", 0, 2, 7, 3, Q("1 in")),
    Sketcher.Constraint("DistanceY", 4, 3, 5, 1, Q("1 in")),
    Sketcher.Constraint("DistanceX", 1, 1, 1, 2, Q("3.25 in")),
    Sketcher.Constraint("Diameter", 4, Q("0.25 in")),
    Sketcher.Constraint("DistanceX", 6, 1, 6, 2, Q("0.5 in")),
    Sketcher.Constraint("DistanceY", 5, 3, -1, 1, Q("1.25 in")),
    Sketcher.Constraint("DistanceY", 4, 3, 14, 3, Q("1.75 in")),
    Sketcher.Constraint("DistanceY", 0, 2, -1, 1, Q("2.8125 in")),
])
pocket2 = body.newObject("PartDesign::Pocket", "Pocket001")
pocket2.Profile = sketch6
pocket2.Length = Q("2.5 in")

sketch7 = body.newObject("Sketcher::SketchObject", "Sketch006")
sketch7.AttachmentSupport = (doc.getObject("XZ_Plane"), [""])
sketch7.MapMode = "FlatFace"
sketch7.AttachmentOffset = App.Placement(Vector(0, 0, -0.125 * 25.4), App.Rotation())
sketch7.addGeometry([
    Part.LineSegment(Vector(0, 0, 0), Vector(0, -63.5, 0)),
    Part.LineSegment(Vector(0, -63.5, 0), Vector(-63.5, -63.5, 0)),
    Part.LineSegment(Vector(-63.5, -63.5, 0), Vector(-63.5, 0, 0)),
    Part.LineSegment(Vector(-63.5, 0, 0), Vector(0, 0, 0)),
    Part.Circle(Vector(-44.5, -31.8, 0), Vector(0, 0, 1), 3.2),
    Part.Circle(Vector(-12.7, -31.8, 0), Vector(0, 0, 1), 3.2),
], False)
sketch7.addConstraint([
    Sketcher.Constraint("Coincident", 0, 2, 1, 1),
    Sketcher.Constraint("Coincident", 1, 2, 2, 1),
    Sketcher.Constraint("Coincident", 2, 2, 3, 1),
    Sketcher.Constraint("Coincident", 3, 2, 0, 1),
    Sketcher.Constraint("Vertical", 0),
    Sketcher.Constraint("Horizontal", 1),
    Sketcher.Constraint("Vertical", 2),
    Sketcher.Constraint("Horizontal", 3),
    Sketcher.Constraint("Coincident", 3, 2, -1, 1),
    Sketcher.Constraint("Equal", 4, 5),
    Sketcher.Constraint("Horizontal", 4, 3, 5, 3),
    Sketcher.Constraint("Equal", 3, 0),
    Sketcher.Constraint("DistanceX", 1, 2, 1, 1, Q("2.5 in")),
    Sketcher.Constraint("Diameter", 4, Q("0.25 in")),
    Sketcher.Constraint("DistanceX", 1, 2, 5, 3, Q("2 in")),
    Sketcher.Constraint("DistanceX", 4, 3, -1, 1, Q("1.75 in")),
    Sketcher.Constraint("DistanceY", 4, 3, -1, 1, Q("1.25 in")),
])
pocket3 = body.newObject("PartDesign::Pocket", "Pocket002")
pocket3.Profile = sketch7
pocket3.Length = Q("1 in")
pocket3.Reversed = True

doc.recompute()
